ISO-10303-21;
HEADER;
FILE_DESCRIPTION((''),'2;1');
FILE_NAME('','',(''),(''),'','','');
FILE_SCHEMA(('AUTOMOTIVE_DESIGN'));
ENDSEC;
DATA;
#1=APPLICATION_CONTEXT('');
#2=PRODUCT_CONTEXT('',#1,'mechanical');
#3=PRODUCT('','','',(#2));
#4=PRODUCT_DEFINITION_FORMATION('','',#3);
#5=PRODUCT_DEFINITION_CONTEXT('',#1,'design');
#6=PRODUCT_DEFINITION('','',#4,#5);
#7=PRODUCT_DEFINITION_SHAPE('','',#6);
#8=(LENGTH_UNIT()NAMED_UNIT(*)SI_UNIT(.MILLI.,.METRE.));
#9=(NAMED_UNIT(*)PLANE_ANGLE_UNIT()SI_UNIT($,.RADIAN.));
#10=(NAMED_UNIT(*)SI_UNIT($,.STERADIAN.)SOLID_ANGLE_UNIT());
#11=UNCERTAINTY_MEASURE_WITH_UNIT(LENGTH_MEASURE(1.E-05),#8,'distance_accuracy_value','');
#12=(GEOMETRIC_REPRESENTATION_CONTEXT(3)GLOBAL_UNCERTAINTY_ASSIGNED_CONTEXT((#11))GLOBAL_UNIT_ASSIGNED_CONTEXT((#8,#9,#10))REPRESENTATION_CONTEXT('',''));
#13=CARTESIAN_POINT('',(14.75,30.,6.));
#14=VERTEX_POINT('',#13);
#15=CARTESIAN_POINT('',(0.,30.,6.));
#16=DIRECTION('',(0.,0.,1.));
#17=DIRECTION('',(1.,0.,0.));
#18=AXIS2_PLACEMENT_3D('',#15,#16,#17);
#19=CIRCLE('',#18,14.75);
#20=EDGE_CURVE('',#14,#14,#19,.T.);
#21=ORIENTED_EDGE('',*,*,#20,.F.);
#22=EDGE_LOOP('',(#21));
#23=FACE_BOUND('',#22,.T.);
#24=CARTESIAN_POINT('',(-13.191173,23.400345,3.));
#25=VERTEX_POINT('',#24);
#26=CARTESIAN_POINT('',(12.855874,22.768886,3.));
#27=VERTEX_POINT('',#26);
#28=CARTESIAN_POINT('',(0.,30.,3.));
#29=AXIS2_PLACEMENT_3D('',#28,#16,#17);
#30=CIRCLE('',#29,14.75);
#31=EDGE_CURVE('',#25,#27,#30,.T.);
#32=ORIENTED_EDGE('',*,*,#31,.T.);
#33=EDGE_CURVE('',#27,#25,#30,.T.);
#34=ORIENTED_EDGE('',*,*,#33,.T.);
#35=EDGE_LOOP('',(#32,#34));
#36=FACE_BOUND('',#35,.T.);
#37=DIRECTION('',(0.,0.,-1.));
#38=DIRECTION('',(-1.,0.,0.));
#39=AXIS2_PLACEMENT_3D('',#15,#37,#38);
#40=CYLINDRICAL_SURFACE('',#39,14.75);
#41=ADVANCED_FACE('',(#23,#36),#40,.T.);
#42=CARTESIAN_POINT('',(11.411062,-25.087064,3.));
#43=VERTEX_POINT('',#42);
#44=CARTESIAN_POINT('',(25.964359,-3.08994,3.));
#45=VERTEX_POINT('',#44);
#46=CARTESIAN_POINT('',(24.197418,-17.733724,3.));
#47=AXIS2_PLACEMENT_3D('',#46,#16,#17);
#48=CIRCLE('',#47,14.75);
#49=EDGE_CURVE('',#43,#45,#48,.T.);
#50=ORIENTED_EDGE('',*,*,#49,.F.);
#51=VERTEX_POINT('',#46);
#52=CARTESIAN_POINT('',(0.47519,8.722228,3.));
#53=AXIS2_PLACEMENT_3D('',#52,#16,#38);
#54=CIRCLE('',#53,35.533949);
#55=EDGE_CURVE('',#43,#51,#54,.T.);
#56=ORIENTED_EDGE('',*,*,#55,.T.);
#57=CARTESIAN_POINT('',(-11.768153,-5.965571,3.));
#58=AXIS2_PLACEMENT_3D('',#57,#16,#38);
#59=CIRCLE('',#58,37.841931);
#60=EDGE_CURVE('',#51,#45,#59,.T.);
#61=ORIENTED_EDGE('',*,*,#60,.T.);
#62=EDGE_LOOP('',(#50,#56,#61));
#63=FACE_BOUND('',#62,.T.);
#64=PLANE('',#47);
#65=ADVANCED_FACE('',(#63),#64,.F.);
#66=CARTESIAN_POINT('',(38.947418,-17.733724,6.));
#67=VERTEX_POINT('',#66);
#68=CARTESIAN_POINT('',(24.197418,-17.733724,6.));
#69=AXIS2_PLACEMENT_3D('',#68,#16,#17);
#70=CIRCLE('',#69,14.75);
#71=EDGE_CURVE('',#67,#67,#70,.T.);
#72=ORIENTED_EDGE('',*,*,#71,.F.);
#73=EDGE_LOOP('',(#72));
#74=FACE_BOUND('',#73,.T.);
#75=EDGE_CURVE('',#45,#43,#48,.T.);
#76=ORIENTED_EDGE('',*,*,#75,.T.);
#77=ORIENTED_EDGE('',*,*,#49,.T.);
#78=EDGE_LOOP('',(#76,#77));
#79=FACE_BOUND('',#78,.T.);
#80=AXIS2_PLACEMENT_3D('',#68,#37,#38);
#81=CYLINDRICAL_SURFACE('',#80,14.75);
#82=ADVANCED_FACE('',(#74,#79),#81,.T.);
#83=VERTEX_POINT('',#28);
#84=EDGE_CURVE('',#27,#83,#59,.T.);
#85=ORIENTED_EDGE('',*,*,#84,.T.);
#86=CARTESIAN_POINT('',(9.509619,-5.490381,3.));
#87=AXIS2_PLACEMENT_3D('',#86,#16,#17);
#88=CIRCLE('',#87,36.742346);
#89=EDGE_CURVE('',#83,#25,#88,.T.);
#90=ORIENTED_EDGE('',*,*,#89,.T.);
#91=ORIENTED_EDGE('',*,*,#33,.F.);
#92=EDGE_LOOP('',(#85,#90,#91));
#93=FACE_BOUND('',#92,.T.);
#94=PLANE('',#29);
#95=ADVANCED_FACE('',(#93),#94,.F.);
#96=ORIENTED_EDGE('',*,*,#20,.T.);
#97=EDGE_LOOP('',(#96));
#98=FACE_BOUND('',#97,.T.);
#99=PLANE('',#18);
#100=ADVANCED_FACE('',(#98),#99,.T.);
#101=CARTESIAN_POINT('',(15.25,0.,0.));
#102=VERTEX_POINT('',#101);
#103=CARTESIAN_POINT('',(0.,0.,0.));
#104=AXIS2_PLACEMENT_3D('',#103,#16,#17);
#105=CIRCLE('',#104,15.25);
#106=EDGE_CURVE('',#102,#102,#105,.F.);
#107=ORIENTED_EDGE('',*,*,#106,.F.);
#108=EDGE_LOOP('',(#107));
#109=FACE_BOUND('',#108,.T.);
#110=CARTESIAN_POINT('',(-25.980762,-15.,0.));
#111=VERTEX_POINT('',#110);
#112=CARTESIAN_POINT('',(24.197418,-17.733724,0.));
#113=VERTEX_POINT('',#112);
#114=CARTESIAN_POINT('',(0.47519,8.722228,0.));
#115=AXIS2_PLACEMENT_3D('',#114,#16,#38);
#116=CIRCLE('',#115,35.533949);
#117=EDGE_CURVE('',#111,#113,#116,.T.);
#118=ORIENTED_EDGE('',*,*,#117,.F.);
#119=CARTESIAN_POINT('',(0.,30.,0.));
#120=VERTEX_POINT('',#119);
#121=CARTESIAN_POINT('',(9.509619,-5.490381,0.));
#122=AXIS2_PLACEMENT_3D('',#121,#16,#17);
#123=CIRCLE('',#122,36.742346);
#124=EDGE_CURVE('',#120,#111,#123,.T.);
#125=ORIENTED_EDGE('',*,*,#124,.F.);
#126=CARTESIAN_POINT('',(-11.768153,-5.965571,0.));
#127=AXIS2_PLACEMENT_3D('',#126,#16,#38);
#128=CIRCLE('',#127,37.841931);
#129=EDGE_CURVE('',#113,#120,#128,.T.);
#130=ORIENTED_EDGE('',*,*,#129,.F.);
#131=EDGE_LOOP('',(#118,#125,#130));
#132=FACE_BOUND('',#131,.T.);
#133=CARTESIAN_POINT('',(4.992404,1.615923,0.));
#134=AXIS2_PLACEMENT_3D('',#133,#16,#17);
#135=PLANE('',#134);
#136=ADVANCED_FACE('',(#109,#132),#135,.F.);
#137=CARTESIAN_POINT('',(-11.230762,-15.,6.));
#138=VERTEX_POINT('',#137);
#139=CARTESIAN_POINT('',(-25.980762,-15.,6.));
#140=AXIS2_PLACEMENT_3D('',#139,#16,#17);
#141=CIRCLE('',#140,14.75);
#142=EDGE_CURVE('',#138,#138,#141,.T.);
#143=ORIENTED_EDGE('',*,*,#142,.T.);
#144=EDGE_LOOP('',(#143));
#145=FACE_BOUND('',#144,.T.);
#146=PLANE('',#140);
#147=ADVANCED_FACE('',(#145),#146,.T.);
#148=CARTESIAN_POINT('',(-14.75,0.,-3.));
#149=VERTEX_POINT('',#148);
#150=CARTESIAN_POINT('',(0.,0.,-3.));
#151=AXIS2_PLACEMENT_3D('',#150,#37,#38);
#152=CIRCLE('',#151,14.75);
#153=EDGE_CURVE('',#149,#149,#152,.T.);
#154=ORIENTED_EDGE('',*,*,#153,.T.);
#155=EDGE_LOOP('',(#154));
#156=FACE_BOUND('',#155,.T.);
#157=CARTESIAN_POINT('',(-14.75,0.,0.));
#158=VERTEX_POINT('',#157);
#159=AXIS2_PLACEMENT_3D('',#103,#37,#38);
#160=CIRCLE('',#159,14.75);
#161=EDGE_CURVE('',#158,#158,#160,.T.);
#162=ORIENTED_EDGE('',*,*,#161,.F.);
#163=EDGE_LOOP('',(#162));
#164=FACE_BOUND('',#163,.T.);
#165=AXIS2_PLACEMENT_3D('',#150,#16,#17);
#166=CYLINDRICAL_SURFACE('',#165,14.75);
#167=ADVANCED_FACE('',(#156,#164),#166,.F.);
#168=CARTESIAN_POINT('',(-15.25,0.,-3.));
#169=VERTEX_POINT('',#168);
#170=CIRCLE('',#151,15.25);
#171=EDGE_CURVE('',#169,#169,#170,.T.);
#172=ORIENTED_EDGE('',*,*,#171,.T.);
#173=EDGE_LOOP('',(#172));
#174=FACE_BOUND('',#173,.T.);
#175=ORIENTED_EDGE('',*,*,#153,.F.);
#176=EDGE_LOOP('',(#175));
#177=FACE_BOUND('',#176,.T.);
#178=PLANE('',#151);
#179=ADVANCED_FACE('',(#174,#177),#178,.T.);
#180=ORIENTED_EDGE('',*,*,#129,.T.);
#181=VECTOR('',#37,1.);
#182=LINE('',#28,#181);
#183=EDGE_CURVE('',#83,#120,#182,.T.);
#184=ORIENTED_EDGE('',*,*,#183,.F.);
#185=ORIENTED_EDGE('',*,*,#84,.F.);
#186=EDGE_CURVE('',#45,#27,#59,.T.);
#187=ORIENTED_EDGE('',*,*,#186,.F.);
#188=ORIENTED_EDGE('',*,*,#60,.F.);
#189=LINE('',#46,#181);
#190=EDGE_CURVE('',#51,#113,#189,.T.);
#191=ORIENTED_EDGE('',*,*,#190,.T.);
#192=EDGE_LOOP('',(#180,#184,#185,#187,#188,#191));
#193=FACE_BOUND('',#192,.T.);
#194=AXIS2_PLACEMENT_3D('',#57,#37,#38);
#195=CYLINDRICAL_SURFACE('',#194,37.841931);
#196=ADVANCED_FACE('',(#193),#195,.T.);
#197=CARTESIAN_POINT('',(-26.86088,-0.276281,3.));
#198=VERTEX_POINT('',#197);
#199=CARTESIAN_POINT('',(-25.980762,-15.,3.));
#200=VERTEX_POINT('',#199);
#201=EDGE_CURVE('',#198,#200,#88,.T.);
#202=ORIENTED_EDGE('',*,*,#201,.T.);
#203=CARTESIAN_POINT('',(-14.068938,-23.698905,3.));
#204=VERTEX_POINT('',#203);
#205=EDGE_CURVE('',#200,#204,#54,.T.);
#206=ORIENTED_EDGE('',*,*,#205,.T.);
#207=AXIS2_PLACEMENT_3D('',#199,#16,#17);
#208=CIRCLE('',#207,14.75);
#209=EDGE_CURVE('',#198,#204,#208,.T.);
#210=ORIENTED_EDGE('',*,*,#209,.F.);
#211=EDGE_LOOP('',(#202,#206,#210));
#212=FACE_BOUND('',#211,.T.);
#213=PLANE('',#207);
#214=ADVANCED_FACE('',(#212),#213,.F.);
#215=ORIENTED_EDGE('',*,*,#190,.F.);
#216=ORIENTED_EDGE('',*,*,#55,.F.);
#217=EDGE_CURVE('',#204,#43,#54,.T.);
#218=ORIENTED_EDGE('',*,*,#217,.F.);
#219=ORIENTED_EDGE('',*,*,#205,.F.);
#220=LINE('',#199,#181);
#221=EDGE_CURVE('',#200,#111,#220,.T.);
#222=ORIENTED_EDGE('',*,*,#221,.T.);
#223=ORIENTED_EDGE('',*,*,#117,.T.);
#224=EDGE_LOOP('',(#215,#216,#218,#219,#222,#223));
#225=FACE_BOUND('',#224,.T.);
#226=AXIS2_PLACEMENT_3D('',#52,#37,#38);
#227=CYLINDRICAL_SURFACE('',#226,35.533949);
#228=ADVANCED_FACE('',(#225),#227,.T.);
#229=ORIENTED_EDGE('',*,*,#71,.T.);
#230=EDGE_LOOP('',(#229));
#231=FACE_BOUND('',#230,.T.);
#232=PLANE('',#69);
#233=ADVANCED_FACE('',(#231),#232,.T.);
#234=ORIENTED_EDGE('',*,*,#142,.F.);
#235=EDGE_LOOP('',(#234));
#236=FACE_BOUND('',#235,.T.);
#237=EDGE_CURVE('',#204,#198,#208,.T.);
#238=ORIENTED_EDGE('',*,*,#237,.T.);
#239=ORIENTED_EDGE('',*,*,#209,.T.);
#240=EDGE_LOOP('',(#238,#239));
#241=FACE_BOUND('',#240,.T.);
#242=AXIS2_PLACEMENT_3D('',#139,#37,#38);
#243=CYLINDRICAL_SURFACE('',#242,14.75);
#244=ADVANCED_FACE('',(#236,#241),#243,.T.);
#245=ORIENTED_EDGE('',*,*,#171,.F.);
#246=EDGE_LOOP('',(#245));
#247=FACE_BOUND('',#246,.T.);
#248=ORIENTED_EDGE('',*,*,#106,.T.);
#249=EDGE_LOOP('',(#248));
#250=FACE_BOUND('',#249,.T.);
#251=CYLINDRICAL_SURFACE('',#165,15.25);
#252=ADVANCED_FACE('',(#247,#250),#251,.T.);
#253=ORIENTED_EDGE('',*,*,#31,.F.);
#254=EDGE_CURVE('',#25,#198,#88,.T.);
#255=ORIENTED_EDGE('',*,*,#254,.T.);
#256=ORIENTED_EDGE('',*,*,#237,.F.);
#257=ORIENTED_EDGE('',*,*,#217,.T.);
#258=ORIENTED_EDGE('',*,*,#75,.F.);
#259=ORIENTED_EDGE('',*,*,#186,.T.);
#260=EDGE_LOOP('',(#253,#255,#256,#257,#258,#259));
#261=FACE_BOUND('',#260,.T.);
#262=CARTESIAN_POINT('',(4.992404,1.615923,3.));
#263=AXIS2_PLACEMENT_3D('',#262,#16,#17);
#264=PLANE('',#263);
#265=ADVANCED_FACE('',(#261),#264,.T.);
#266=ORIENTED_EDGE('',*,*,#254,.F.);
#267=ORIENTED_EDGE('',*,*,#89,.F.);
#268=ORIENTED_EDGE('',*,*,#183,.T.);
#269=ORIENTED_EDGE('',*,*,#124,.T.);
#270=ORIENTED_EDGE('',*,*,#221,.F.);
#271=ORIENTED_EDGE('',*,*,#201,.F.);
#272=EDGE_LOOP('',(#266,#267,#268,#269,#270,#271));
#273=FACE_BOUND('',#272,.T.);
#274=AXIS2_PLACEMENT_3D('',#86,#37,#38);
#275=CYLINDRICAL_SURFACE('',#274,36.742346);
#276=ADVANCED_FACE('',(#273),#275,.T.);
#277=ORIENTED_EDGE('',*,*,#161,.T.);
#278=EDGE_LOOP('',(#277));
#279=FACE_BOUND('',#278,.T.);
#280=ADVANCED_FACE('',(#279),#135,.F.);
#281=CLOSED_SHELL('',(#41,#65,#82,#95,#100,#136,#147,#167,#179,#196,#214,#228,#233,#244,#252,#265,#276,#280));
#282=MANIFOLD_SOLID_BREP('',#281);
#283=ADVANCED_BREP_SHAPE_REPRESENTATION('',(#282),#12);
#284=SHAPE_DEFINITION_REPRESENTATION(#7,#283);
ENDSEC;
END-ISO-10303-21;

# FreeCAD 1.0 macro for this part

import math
import FreeCAD as App
import Part
import Sketcher

V = App.Vector
Q = App.Units.Quantity

doc = App.newDocument("Part")
params = doc.addObject("Spreadsheet::Sheet", "Params")
for row, (alias, value) in enumerate([
    ("pad1_length", "3 mm"),
    ("sketch2_diameter", "29.5 mm"),
    ("pad2_length", "3 mm"),
    ("sketch3_diameter", "30.5 mm"),
    ("sketch3_diameter2", "29.5 mm"),
    ("pad3_length", "3 mm"),
], start=1):
    params.set(f"A{row}", alias)
    params.set(f"B{row}", "=" + value)
    params.setAlias(f"B{row}", alias)

body = doc.addObject("PartDesign::Body", "Body")

sketch1 = body.newObject("Sketcher::SketchObject", "Sketch")
sketch1.AttachmentSupport = (doc.getObject("XY_Plane"), [""])
sketch1.MapMode = "FlatFace"
sketch1.addGeometry(Part.ArcOfCircle(Part.Circle(V(-12, -6, 0), V(0, 0, 1), 38), math.radians(-18), math.radians(72)), False)
sketch1.addGeometry(Part.ArcOfCircle(Part.Circle(V(10, -5, 0), V(0, 0, 1), 37), math.radians(105), math.radians(195)), False)
sketch1.addGeometry(Part.ArcOfCircle(Part.Circle(V(0, 9, 0), V(0, 0, 1), 36), math.radians(-138), math.radians(-48)), False)
sketch1.addConstraint(Sketcher.Constraint("Coincident", 0, 2, 1, 1))
sketch1.addConstraint(Sketcher.Constraint("Coincident", 1, 2, 2, 1))
sketch1.addConstraint(Sketcher.Constraint("Coincident", 2, 2, 0, 1))
sketch1.addConstraint(Sketcher.Constraint("PointOnObject", 0, 2, -2))
sketch1.addConstraint(Sketcher.Constraint("DistanceY", -1, 1, 0, 2, Q("30 mm")))
sketch1.addConstraint(Sketcher.Constraint("DistanceY", 1, 2, -1, 1, Q("15 mm")))
sketch1.addConstraint(Sketcher.Constraint("Radius", 0, Q("37.841931 mm")))
sketch1.addConstraint(Sketcher.Constraint("Radius", 2, Q("35.533949 mm")))
sketch1.addConstraint(Sketcher.Constraint("Radius", 1, Q("36.742346 mm")))
sketch1.addConstraint(Sketcher.Constraint("DistanceY", 0, 3, 2, 3, Q("14.687799 mm")))
sketch1.addConstraint(Sketcher.Constraint("DistanceX", 1, 3, 2, 2, Q("14.687799 mm")))
sketch1.addConstraint(Sketcher.Constraint("DistanceY", 0, 3, -1, 1, Q("5.965571 mm")))
pad1 = body.newObject("PartDesign::Pad", "Pad")
pad1.Profile = sketch1
pad1.setExpression("Length", "Params.pad1_length")

sketch2 = body.newObject("Sketcher::SketchObject", "Sketch001")
sketch2.AttachmentSupport = (doc.getObject("XY_Plane"), [""])
sketch2.MapMode = "FlatFace"
sketch2.AttachmentOffset = App.Placement(V(0, 0, 3), App.Rotation())
sketch2.addGeometry(Part.Circle(V(0, 30, 0), V(0, 0, 1), 15), False)
sketch2.addGeometry(Part.Circle(V(24, -18, 0), V(0, 0, 1), 15), False)
sketch2.addGeometry(Part.Circle(V(-26, -15, 0), V(0, 0, 1), 15), False)
sketch2.addConstraint(Sketcher.Constraint("Equal", 0, 1))
sketch2.addConstraint(Sketcher.Constraint("Equal", 1, 2))
sketch2.addConstraint(Sketcher.Constraint("PointOnObject", 0, 3, -2))
sketch2.addConstraint(Sketcher.Constraint("Diameter", 0, Q("29.5 mm")))
sketch2.addConstraint(Sketcher.Constraint("DistanceY", -1, 1, 0, 3, Q("30 mm")))
sketch2.addConstraint(Sketcher.Constraint("DistanceY", 2, 3, -1, 1, Q("15 mm")))
sketch2.addConstraint(Sketcher.Constraint("DistanceX", 2, 3, 1, 3, Q("50.17818 mm")))
sketch2.addConstraint(Sketcher.Constraint("DistanceX", -1, 1, 1, 3, Q("24.197418 mm")))
sketch2.addConstraint(Sketcher.Constraint("DistanceY", 1, 3, -1, 1, Q("17.733724 mm")))
sketch2.setExpression("Constraints[3]", "Params.sketch2_diameter")
pad2 = body.newObject("PartDesign::Pad", "Pad001")
pad2.Profile = sketch2
pad2.setExpression("Length", "Params.pad2_length")

sketch3 = body.newObject("Sketcher::SketchObject", "Sketch002")
sketch3.AttachmentSupport = (doc.getObject("XY_Plane"), [""])
sketch3.MapMode = "FlatFace"
sketch3.addGeometry(Part.Circle(V(0, 0, 0), V(0, 0, 1), 15), False)
sketch3.addGeometry(Part.Circle(V(0, 0, 0), V(0, 0, 1), 15), False)
sketch3.addConstraint(Sketcher.Constraint("Coincident", 0, 3, -1, 1))
sketch3.addConstraint(Sketcher.Constraint("Coincident", 1, 3, -1, 1))
sketch3.addConstraint(Sketcher.Constraint("Diameter", 0, Q("30.5 mm")))
sketch3.addConstraint(Sketcher.Constraint("Diameter", 1, Q("29.5 mm")))
sketch3.setExpression("Constraints[2]", "Params.sketch3_diameter")
sketch3.setExpression("Constraints[3]", "Params.sketch3_diameter2")
pad3 = body.newObject("PartDesign::Pad", "Pad002")
pad3.Profile = sketch3
pad3.setExpression("Length", "Params.pad3_length")
pad3.Reversed = True

doc.recompute()
